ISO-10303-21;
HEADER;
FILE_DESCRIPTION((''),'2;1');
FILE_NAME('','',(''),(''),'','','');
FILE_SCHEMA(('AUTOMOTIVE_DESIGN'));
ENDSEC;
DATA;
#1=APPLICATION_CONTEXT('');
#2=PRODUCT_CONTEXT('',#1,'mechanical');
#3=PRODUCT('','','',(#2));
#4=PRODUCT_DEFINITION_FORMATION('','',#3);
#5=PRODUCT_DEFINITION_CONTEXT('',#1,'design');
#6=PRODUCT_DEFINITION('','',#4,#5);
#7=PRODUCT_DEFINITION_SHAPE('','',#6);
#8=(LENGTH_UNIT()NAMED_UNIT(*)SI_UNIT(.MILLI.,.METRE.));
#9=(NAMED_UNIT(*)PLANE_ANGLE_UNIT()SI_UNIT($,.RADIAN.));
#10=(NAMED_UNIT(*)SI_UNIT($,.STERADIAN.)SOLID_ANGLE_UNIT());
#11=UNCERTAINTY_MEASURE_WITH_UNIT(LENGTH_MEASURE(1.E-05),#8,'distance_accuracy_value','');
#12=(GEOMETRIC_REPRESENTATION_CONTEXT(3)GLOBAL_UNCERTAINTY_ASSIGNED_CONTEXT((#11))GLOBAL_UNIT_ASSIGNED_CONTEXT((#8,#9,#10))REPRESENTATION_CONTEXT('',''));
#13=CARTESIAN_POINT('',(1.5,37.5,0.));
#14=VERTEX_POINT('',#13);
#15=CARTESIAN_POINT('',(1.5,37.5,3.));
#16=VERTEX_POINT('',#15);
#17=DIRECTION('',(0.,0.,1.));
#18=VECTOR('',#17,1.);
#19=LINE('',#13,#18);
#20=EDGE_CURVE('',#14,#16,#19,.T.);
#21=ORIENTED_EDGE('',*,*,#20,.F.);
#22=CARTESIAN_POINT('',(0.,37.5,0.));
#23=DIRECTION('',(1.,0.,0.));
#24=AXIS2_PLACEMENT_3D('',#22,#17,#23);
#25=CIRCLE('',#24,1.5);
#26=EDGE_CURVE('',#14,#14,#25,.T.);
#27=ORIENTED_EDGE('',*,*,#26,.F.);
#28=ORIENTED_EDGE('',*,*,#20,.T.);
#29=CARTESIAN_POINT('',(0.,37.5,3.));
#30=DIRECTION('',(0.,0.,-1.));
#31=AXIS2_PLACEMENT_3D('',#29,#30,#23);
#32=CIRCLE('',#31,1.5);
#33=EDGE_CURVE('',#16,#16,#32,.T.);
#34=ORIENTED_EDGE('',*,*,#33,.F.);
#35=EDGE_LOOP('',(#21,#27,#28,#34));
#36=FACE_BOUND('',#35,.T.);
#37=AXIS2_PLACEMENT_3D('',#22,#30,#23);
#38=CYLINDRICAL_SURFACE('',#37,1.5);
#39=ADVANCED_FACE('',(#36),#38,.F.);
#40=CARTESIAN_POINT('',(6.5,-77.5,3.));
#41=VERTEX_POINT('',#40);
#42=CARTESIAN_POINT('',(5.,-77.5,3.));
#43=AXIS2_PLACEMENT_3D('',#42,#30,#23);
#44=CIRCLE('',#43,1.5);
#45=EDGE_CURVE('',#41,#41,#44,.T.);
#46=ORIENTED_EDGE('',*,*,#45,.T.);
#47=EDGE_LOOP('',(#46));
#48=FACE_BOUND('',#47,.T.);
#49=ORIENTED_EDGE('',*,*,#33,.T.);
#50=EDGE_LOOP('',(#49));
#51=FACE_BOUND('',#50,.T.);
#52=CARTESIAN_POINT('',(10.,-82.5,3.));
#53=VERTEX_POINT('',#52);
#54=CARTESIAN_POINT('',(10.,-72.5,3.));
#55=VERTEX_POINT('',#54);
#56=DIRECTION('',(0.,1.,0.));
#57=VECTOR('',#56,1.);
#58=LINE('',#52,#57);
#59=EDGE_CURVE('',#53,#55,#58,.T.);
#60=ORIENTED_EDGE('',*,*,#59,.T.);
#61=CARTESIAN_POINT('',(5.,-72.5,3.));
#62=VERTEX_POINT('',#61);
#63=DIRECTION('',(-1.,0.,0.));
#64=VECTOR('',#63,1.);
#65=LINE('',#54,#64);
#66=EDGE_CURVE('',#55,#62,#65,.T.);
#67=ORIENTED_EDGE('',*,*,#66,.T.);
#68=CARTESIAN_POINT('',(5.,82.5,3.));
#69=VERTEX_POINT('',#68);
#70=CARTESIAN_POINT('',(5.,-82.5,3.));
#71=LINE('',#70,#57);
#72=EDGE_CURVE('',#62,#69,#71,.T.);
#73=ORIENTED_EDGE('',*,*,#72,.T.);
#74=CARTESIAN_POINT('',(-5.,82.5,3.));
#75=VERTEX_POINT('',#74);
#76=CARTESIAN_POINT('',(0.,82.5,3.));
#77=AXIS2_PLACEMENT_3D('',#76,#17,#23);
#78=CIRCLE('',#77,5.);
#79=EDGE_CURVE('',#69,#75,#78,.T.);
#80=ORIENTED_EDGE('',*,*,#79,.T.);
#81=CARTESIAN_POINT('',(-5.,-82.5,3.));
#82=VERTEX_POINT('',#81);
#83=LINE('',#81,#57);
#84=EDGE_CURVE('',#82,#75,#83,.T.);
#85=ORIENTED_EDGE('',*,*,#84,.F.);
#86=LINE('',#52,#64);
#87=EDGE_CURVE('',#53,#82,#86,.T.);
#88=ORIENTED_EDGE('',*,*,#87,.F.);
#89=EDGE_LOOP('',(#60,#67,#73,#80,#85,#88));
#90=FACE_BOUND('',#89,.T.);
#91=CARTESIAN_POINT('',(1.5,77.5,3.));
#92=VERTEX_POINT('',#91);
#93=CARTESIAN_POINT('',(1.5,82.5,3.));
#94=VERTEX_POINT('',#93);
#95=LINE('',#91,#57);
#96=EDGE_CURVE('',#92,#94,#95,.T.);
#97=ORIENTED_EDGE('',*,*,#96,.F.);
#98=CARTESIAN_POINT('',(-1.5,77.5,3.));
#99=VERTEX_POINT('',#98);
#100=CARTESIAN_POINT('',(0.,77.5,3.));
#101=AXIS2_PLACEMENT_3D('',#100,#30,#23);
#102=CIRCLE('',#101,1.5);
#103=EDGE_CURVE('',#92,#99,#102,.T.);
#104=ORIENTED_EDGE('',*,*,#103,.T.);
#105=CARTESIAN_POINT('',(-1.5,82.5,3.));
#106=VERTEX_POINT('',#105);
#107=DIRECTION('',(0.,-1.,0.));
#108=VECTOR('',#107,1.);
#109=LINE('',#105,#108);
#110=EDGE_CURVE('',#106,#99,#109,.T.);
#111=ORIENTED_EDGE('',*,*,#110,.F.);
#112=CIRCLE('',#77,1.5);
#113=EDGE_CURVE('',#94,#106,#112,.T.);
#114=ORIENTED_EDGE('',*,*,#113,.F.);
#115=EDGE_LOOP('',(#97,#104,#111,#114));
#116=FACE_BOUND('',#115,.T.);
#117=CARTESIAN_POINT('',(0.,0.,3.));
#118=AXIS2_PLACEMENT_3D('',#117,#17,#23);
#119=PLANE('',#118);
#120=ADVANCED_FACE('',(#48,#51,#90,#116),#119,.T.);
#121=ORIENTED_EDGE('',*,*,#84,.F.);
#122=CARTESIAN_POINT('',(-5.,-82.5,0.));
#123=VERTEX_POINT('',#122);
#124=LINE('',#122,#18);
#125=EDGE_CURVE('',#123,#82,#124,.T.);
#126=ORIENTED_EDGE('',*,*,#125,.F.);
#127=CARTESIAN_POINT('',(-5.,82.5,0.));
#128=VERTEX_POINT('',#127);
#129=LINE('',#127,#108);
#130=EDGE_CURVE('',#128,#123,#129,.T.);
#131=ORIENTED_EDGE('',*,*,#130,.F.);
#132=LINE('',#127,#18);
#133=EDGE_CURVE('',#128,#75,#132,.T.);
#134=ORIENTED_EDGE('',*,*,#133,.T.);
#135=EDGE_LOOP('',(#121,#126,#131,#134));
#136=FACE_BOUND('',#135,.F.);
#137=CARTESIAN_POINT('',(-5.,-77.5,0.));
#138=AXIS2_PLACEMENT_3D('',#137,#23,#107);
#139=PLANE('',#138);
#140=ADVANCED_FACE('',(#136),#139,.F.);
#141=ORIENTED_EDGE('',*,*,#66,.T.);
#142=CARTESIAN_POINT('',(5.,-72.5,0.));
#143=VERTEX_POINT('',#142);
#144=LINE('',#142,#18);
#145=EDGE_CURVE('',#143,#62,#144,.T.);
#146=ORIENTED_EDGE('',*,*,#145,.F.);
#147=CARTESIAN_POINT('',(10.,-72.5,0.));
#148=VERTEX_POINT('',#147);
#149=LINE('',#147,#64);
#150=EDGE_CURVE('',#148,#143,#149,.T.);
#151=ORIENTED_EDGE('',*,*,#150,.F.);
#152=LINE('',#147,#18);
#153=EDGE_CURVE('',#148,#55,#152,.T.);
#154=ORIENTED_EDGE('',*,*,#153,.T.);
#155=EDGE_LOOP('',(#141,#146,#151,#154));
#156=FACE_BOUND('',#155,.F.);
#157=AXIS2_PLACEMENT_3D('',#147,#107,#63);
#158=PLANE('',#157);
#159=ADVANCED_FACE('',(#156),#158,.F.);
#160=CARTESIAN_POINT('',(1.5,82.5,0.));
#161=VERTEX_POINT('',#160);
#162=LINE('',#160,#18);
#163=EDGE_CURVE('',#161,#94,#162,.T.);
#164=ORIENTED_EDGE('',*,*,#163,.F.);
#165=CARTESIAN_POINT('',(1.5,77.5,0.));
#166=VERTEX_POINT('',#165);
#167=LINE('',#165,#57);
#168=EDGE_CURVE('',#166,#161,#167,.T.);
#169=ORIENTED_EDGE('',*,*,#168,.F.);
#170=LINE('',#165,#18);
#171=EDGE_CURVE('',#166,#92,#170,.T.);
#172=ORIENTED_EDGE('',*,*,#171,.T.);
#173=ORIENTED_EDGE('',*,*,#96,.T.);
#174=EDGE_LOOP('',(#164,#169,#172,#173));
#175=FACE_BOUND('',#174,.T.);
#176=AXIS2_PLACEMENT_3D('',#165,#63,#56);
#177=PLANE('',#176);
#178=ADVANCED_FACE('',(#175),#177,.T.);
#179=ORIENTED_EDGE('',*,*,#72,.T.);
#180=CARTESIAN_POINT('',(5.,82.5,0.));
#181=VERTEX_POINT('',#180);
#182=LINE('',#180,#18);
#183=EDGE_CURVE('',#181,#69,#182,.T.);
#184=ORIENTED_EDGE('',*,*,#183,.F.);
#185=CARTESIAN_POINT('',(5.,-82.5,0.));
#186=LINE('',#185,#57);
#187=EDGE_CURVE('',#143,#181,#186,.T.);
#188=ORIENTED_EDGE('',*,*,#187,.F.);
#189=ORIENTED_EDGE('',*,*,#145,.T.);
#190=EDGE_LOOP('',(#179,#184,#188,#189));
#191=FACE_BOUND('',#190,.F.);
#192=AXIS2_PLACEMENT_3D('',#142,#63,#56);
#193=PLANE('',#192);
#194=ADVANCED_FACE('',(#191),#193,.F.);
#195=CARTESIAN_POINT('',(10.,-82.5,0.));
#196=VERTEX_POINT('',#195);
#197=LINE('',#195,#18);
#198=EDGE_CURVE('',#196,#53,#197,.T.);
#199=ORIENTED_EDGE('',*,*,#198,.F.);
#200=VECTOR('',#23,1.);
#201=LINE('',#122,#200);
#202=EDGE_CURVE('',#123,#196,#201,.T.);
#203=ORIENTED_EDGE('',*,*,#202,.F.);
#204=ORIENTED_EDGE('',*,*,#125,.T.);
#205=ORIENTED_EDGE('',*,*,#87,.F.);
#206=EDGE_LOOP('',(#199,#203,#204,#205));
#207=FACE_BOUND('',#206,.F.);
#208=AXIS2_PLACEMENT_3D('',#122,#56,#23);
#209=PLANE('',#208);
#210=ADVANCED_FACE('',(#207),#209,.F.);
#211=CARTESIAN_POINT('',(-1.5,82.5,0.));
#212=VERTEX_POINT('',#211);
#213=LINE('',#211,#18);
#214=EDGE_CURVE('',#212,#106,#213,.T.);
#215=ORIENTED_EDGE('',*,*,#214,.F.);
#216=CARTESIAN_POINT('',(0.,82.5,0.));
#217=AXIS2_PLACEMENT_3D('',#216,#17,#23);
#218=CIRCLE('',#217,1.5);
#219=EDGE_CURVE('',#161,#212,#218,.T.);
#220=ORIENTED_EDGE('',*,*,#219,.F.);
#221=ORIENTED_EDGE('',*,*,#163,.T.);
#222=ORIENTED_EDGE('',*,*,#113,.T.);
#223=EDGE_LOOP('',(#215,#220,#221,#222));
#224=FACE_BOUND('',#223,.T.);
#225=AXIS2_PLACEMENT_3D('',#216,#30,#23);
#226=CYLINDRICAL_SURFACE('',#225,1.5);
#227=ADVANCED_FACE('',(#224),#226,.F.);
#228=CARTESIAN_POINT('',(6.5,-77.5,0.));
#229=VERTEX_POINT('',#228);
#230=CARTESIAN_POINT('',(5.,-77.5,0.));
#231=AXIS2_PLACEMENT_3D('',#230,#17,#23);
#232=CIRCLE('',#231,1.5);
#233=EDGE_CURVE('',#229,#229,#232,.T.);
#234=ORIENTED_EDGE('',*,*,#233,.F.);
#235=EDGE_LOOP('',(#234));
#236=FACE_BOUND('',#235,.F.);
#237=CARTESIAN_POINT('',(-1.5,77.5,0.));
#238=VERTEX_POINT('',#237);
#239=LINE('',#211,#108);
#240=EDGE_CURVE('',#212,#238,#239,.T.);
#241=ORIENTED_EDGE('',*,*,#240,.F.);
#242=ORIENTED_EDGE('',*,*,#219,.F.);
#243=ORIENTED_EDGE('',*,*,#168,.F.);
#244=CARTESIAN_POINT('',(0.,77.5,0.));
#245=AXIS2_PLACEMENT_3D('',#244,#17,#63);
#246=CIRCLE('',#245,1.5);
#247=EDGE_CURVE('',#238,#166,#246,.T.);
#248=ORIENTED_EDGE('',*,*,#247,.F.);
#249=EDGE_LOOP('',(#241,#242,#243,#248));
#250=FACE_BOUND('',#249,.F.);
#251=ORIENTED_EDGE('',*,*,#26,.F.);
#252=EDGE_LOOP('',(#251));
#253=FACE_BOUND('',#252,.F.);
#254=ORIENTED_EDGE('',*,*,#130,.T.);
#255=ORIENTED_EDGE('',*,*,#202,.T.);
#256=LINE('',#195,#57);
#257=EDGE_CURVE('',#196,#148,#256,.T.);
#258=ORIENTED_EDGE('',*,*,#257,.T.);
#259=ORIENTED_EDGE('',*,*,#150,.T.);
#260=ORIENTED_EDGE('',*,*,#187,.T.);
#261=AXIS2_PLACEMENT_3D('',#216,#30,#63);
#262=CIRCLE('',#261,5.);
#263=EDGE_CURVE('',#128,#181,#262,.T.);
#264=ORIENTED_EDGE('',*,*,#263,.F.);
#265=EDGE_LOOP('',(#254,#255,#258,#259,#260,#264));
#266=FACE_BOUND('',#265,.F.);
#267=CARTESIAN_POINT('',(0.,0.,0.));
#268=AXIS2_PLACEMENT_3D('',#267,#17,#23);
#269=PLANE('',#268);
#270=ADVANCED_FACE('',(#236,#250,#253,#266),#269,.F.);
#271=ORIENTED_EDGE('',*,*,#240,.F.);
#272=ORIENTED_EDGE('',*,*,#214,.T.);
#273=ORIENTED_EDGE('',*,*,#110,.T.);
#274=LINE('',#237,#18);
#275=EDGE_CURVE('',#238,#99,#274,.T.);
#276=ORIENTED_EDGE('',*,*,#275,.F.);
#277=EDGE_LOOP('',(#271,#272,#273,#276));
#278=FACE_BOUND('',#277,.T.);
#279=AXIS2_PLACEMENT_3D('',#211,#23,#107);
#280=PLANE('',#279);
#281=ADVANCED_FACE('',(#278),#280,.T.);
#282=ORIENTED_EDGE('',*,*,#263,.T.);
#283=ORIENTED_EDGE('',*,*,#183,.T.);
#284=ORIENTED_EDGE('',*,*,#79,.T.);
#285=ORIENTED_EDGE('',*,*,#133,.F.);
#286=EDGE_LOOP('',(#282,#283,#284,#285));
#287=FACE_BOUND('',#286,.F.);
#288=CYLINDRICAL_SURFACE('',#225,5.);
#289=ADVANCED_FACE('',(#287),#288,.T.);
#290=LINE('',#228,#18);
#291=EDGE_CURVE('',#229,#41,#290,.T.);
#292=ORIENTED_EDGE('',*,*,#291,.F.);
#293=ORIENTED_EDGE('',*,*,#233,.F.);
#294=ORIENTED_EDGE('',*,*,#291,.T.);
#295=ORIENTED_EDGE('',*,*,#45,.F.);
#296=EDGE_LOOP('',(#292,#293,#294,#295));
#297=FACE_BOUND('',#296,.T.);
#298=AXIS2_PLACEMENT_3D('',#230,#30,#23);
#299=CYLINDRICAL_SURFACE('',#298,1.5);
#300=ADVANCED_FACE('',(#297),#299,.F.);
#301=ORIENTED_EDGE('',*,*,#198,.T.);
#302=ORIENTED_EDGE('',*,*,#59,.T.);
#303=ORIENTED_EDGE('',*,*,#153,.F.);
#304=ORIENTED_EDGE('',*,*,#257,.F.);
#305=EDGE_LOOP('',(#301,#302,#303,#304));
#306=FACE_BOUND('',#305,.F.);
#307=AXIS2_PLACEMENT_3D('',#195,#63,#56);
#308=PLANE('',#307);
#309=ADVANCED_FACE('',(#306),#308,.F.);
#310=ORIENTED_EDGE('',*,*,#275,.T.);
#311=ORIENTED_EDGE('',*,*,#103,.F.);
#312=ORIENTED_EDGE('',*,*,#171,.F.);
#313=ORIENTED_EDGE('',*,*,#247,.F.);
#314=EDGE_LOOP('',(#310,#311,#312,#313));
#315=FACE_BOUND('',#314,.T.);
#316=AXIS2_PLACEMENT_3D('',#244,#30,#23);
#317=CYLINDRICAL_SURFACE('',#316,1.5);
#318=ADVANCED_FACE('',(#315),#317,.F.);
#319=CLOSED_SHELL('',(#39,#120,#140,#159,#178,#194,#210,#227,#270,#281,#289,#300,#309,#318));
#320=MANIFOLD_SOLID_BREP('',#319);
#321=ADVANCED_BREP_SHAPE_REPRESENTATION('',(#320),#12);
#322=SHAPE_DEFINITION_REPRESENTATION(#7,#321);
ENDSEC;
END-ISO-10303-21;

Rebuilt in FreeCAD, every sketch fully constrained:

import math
import FreeCAD as App
import Part
import Sketcher
Q = App.Units.Quantity

doc = App.newDocument("Part")
body = doc.addObject("PartDesign::Body", "Body")

# Sketch on XY plane
sketch1 = doc.addObject("Sketcher::SketchObject", "Sketch")
body.addObject(sketch1)
sketch1.AttachmentSupport = (doc.XY_Plane, [""])
sketch1.MapMode = "FlatFace"
sketch1.addGeometry([
    Part.LineSegment(App.Vector(-5, -82.5, 0), App.Vector(10, -82.5, 0)),  # 0
    Part.LineSegment(App.Vector(10, -82.5, 0), App.Vector(10, -72.5, 0)),  # 1
    Part.LineSegment(App.Vector(10, -72.5, 0), App.Vector(5, -72.5, 0)),  # 2
    Part.LineSegment(App.Vector(5, -72.5, 0), App.Vector(5, 82.5, 0)),  # 3
    Part.ArcOfCircle(Part.Circle(App.Vector(0, 82.5, 0), App.Vector(0, 0, 1), 5), math.radians(0), math.radians(180)),  # 4
    Part.LineSegment(App.Vector(-5, 82.5, 0), App.Vector(-5, -82.5, 0)),  # 5
    Part.Circle(App.Vector(5, -77.5, 0), App.Vector(0, 0, 1), 1.5),  # 6
    Part.Circle(App.Vector(0, 37.5, 0), App.Vector(0, 0, 1), 1.5),  # 7
    Part.ArcOfCircle(Part.Circle(App.Vector(0, 77.5, 0), App.Vector(0, 0, 1), 1.5), math.radians(180), math.radians(360)),  # 8
    Part.LineSegment(App.Vector(-1.5, 77.5, 0), App.Vector(-1.5, 82.5, 0)),  # 9
    Part.ArcOfCircle(Part.Circle(App.Vector(0, 82.5, 0), App.Vector(0, 0, 1), 1.5), math.radians(0), math.radians(180)),  # 10
    Part.LineSegment(App.Vector(1.5, 82.5, 0), App.Vector(1.5, 77.5, 0)),  # 11
], False)
sketch1.addConstraint([
    Sketcher.Constraint("Coincident", 0, 2, 1, 1),
    Sketcher.Constraint("Coincident", 1, 2, 2, 1),
    Sketcher.Constraint("Coincident", 2, 2, 3, 1),
    Sketcher.Constraint("Tangent", 3, 2, 4, 1),
    Sketcher.Constraint("Tangent", 4, 2, 5, 1),
    Sketcher.Constraint("Coincident", 5, 2, 0, 1),
    Sketcher.Constraint("Tangent", 8, 1, 9, 1),
    Sketcher.Constraint("Tangent", 9, 2, 10, 2),
    Sketcher.Constraint("Tangent", 10, 1, 11, 1),
    Sketcher.Constraint("Tangent", 11, 2, 8, 2),
    Sketcher.Constraint("Horizontal", 0),
    Sketcher.Constraint("Vertical", 1),
    Sketcher.Constraint("Horizontal", 2),
    Sketcher.Constraint("Vertical", 3),
    Sketcher.Constraint("Vertical", 5),
    Sketcher.Constraint("Vertical", 9),
    Sketcher.Constraint("Vertical", 11),
    Sketcher.Constraint("Coincident", 10, 3, 4, 3),
    Sketcher.Constraint("Equal", 6, 7),
    Sketcher.Constraint("Equal", 7, 8),
    Sketcher.Constraint("Symmetric", 3, 2, 5, 2, -1, 1),
    Sketcher.Constraint("PointOnObject", 7, 3, -2),
    Sketcher.Constraint("Vertical", 6, 3, 2, 2),
    Sketcher.Constraint("Equal", 2, 9),
    Sketcher.Constraint("Diameter", 6, Q("3 mm")),
    Sketcher.Constraint("Radius", 4, Q("5 mm")),
    Sketcher.Constraint("DistanceX", 0, 1, 0, 2, Q("15 mm")),
    Sketcher.Constraint("DistanceY", 1, 1, 1, 2, Q("10 mm")),
    Sketcher.Constraint("DistanceY", 5, 2, 5, 1, Q("165 mm")),
    Sketcher.Constraint("DistanceY", 7, 3, 8, 3, Q("40 mm")),
    Sketcher.Constraint("DistanceY", 0, 2, 6, 3, Q("5 mm")),
])
pad1 = doc.addObject("PartDesign::Pad", "Pad")
body.addObject(pad1)
pad1.Profile = sketch1
pad1.Length = 3

doc.recompute()
